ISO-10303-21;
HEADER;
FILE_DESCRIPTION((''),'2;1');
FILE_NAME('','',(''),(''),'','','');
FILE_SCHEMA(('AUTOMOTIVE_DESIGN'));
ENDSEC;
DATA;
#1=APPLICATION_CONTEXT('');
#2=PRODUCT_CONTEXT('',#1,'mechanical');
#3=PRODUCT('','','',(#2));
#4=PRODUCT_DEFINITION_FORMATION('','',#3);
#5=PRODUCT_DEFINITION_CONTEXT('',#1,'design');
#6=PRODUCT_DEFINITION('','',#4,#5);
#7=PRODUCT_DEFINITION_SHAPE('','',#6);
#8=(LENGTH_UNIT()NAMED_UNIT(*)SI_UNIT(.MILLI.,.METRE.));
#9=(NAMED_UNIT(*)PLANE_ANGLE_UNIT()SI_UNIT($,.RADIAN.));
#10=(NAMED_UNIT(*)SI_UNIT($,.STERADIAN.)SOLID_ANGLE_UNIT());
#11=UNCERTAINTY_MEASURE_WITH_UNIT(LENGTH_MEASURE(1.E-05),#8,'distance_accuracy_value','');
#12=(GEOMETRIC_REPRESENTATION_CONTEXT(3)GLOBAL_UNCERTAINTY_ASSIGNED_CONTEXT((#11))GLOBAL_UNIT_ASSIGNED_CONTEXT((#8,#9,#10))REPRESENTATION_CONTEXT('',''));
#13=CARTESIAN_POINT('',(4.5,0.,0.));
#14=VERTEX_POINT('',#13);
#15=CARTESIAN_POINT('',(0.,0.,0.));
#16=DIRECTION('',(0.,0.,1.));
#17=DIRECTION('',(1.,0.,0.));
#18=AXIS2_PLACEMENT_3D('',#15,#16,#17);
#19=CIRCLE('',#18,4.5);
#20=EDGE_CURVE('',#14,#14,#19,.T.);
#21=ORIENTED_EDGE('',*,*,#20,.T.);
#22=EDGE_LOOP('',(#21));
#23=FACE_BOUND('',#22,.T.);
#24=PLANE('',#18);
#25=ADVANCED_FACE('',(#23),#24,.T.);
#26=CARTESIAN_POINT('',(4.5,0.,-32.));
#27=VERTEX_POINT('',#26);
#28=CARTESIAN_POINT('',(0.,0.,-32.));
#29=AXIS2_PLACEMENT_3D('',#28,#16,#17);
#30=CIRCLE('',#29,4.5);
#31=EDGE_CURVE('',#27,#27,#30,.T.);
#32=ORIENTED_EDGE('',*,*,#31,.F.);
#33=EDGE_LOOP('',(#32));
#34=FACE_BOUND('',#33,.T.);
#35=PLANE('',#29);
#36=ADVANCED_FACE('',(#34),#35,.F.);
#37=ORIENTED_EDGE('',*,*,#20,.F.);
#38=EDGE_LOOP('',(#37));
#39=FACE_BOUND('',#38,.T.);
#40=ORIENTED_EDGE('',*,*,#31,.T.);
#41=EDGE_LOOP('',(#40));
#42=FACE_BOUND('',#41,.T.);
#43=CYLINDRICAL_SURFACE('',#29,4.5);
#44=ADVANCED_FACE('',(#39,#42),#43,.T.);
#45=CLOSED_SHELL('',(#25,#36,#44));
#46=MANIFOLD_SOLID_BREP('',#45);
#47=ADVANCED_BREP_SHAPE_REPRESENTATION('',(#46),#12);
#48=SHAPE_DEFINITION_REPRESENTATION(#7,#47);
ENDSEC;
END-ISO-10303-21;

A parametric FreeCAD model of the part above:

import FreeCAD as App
import Part
import Sketcher
from FreeCAD import Vector

doc = App.newDocument("Part")
body = doc.addObject("PartDesign::Body", "Body")

# Sketch on XY plane
sketch1 = body.newObject("Sketcher::SketchObject", "Sketch")
sketch1.AttachmentSupport = (doc.getObject("XY_Plane"), [""])
sketch1.MapMode = "FlatFace"
sketch1.addGeometry(Part.Circle(Vector(0, 0, 0), Vector(0, 0, 1), 4.5), False)
sketch1.addConstraint(Sketcher.Constraint("Coincident", 0, 3, -1, 1))
sketch1.addConstraint(Sketcher.Constraint("Diameter", 0, 9.0))
pad1 = body.newObject("PartDesign::Pad", "Pad")
pad1.Profile = sketch1
pad1.Length = 32
pad1.Reversed = True

doc.recompute()
